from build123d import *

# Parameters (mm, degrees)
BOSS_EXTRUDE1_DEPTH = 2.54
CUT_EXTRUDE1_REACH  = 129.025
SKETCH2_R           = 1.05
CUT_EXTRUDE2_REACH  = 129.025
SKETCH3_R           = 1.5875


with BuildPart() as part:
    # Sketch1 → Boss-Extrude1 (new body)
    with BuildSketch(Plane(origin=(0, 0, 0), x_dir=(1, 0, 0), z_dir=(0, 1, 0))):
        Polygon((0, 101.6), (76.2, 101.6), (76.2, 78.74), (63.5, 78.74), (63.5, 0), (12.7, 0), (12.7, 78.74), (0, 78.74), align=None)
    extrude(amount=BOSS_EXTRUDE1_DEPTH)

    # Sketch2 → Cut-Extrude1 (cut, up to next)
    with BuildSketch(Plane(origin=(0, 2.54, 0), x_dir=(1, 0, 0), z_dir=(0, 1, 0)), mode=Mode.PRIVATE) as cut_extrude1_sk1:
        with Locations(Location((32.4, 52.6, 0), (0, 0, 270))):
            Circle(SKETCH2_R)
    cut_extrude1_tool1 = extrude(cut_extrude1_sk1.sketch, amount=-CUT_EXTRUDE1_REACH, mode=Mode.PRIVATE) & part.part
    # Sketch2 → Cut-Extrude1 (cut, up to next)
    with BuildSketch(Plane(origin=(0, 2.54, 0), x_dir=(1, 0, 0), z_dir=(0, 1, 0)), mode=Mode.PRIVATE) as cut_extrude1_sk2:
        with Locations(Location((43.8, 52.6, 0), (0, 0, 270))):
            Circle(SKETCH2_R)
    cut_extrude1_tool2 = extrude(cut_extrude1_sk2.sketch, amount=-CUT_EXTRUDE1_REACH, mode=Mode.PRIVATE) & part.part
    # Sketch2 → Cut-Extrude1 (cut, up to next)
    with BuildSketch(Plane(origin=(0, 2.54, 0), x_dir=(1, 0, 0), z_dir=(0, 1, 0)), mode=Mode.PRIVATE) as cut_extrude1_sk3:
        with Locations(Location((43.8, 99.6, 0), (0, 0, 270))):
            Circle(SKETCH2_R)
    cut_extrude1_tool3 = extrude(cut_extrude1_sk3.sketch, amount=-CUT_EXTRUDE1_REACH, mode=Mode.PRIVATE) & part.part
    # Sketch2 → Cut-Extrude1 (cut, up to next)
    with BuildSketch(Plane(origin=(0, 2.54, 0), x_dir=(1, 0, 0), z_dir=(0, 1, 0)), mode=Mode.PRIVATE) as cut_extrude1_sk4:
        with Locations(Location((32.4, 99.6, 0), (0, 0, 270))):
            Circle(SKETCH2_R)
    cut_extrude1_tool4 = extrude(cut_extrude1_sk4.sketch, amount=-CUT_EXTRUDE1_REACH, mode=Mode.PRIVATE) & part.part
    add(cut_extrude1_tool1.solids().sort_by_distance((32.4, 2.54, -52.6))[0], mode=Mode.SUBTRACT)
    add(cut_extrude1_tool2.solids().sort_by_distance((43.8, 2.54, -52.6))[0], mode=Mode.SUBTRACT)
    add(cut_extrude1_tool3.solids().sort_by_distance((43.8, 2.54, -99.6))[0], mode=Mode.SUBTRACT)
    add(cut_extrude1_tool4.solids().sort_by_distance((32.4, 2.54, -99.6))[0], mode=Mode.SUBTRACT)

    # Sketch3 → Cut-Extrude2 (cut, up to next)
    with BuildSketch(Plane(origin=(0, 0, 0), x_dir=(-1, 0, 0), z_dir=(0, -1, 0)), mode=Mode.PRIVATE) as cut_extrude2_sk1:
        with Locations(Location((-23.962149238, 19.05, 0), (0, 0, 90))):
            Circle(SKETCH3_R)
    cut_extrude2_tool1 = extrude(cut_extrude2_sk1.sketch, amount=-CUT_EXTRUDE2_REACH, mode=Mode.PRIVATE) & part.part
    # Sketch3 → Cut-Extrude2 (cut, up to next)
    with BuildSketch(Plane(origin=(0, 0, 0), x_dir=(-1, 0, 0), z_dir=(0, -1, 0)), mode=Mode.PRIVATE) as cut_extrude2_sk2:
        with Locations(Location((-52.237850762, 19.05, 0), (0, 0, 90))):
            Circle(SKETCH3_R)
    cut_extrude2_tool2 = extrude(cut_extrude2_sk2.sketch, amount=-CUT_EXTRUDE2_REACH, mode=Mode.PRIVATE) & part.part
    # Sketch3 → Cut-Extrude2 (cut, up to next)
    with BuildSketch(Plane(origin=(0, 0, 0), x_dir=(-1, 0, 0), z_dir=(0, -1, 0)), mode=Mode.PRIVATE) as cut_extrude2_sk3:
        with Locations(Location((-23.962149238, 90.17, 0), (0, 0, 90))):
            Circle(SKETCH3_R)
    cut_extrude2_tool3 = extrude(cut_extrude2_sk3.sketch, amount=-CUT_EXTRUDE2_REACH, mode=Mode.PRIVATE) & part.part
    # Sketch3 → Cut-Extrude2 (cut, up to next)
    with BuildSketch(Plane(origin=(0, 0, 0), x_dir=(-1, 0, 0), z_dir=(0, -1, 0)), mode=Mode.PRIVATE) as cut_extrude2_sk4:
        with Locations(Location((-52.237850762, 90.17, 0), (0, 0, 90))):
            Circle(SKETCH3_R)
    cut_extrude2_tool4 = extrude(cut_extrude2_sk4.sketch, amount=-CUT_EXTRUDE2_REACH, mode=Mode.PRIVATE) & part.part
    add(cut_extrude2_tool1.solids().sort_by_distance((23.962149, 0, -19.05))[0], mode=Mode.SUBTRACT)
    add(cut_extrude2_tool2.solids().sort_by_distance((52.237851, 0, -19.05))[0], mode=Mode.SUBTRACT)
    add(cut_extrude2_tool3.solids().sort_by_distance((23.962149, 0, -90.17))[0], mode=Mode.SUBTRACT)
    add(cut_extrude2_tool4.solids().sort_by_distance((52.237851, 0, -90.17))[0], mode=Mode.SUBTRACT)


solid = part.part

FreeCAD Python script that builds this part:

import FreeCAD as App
import Part
import Sketcher
from FreeCAD import Vector
Q = App.Units.Quantity

doc = App.newDocument("Part")
body = doc.addObject("PartDesign::Body", "Body")

sketch1 = body.newObject("Sketcher::SketchObject", "Sketch")
sketch1.AttachmentSupport = (doc.getObject("XZ_Plane"), [""])
sketch1.MapMode = "FlatFace"
sketch1.addGeometry(Part.LineSegment(Vector(76, -102, 0), Vector(0, -102, 0)), False)
sketch1.addGeometry(Part.LineSegment(Vector(0, -102, 0), Vector(0, -79, 0)), False)
sketch1.addGeometry(Part.LineSegment(Vector(0, -79, 0), Vector(13, -79, 0)), False)
sketch1.addGeometry(Part.LineSegment(Vector(13, -79, 0), Vector(13, 0, 0)), False)
sketch1.addGeometry(Part.LineSegment(Vector(13, 0, 0), Vector(64, 0, 0)), False)
sketch1.addGeometry(Part.LineSegment(Vector(64, 0, 0), Vector(64, -79, 0)), False)
sketch1.addGeometry(Part.LineSegment(Vector(64, -79, 0), Vector(76, -79, 0)), False)
sketch1.addGeometry(Part.LineSegment(Vector(76, -79, 0), Vector(76, -102, 0)), False)
sketch1.addConstraint(Sketcher.Constraint("Coincident", 0, 2, 1, 1))
sketch1.addConstraint(Sketcher.Constraint("Coincident", 1, 2, 2, 1))
sketch1.addConstraint(Sketcher.Constraint("Coincident", 2, 2, 3, 1))
sketch1.addConstraint(Sketcher.Constraint("Coincident", 3, 2, 4, 1))
sketch1.addConstraint(Sketcher.Constraint("Coincident", 4, 2, 5, 1))
sketch1.addConstraint(Sketcher.Constraint("Coincident", 5, 2, 6, 1))
sketch1.addConstraint(Sketcher.Constraint("Coincident", 6, 2, 7, 1))
sketch1.addConstraint(Sketcher.Constraint("Coincident", 7, 2, 0, 1))
sketch1.addConstraint(Sketcher.Constraint("Horizontal", 0))
sketch1.addConstraint(Sketcher.Constraint("Vertical", 1))
sketch1.addConstraint(Sketcher.Constraint("Horizontal", 2))
sketch1.addConstraint(Sketcher.Constraint("Vertical", 3))
sketch1.addConstraint(Sketcher.Constraint("Horizontal", 4))
sketch1.addConstraint(Sketcher.Constraint("Vertical", 5))
sketch1.addConstraint(Sketcher.Constraint("Horizontal", 6))
sketch1.addConstraint(Sketcher.Constraint("Vertical", 7))
sketch1.addConstraint(Sketcher.Constraint("PointOnObject", 0, 2, -2))
sketch1.addConstraint(Sketcher.Constraint("PointOnObject", 3, 2, -1))
sketch1.addConstraint(Sketcher.Constraint("Horizontal", 2, 2, 5, 2))
sketch1.addConstraint(Sketcher.Constraint("Equal", 2, 6))
sketch1.addConstraint(Sketcher.Constraint("DistanceX", 0, 2, 0, 1, Q("3 in")))
sketch1.addConstraint(Sketcher.Constraint("DistanceX", 4, 1, 4, 2, Q("2 in")))
sketch1.addConstraint(Sketcher.Constraint("DistanceY", 1, 1, 1, 2, Q("0.9 in")))
sketch1.addConstraint(Sketcher.Constraint("DistanceY", 3, 1, 3, 2, Q("3.1 in")))
pad1 = body.newObject("PartDesign::Pad", "Pad")
pad1.Profile = sketch1
pad1.Length = Q("0.1 in")
pad1.Reversed = True

sketch2 = body.newObject("Sketcher::SketchObject", "Sketch001")
sketch2.AttachmentSupport = (doc.getObject("XZ_Plane"), [""])
sketch2.MapMode = "FlatFace"
sketch2.AttachmentOffset = App.Placement(Vector(0, 0, -0.1 * 25.4), App.Rotation())
sketch2.addGeometry(Part.Circle(Vector(32.4, -52.6, 0), Vector(0, 0, 1), 1.1), False)
sketch2.addConstraint(Sketcher.Constraint("Diameter", 0, 2.1))
sketch2.addConstraint(Sketcher.Constraint("DistanceX", -1, 1, 0, 3, 32.4))
sketch2.addConstraint(Sketcher.Constraint("DistanceY", 0, 3, -1, 1, 52.6))
pocket1 = body.newObject("PartDesign::Pocket", "Pocket")
pocket1.Profile = sketch2
pocket1.Type = "UpToFirst"
pocket1.Reversed = True

sketch3 = body.newObject("Sketcher::SketchObject", "Sketch002")
sketch3.AttachmentSupport = (doc.getObject("XZ_Plane"), [""])
sketch3.MapMode = "FlatFace"
sketch3.AttachmentOffset = App.Placement(Vector(0, 0, -0.1 * 25.4), App.Rotation())
sketch3.addGeometry(Part.Circle(Vector(43.8, -52.6, 0), Vector(0, 0, 1), 1.1), False)
sketch3.addConstraint(Sketcher.Constraint("Diameter", 0, 2.1))
sketch3.addConstraint(Sketcher.Constraint("DistanceX", -1, 1, 0, 3, 43.8))
sketch3.addConstraint(Sketcher.Constraint("DistanceY", 0, 3, -1, 1, 52.6))
pocket2 = body.newObject("PartDesign::Pocket", "Pocket001")
pocket2.Profile = sketch3
pocket2.Type = "UpToFirst"
pocket2.Reversed = True

sketch4 = body.newObject("Sketcher::SketchObject", "Sketch003")
sketch4.AttachmentSupport = (doc.getObject("XZ_Plane"), [""])
sketch4.MapMode = "FlatFace"
sketch4.AttachmentOffset = App.Placement(Vector(0, 0, -0.1 * 25.4), App.Rotation())
sketch4.addGeometry(Part.Circle(Vector(43.8, -99.6, 0), Vector(0, 0, 1), 1.1), False)
sketch4.addConstraint(Sketcher.Constraint("Diameter", 0, 2.1))
sketch4.addConstraint(Sketcher.Constraint("DistanceX", -1, 1, 0, 3, 43.8))
sketch4.addConstraint(Sketcher.Constraint("DistanceY", 0, 3, -1, 1, 99.6))
pocket3 = body.newObject("PartDesign::Pocket", "Pocket002")
pocket3.Profile = sketch4
pocket3.Type = "UpToFirst"
pocket3.Reversed = True

sketch5 = body.newObject("Sketcher::SketchObject", "Sketch004")
sketch5.AttachmentSupport = (doc.getObject("XZ_Plane"), [""])
sketch5.MapMode = "FlatFace"
sketch5.AttachmentOffset = App.Placement(Vector(0, 0, -0.1 * 25.4), App.Rotation())
sketch5.addGeometry(Part.Circle(Vector(32.4, -99.6, 0), Vector(0, 0, 1), 1.1), False)
sketch5.addConstraint(Sketcher.Constraint("Diameter", 0, 2.1))
sketch5.addConstraint(Sketcher.Constraint("DistanceX", -1, 1, 0, 3, 32.4))
sketch5.addConstraint(Sketcher.Constraint("DistanceY", 0, 3, -1, 1, 99.6))
pocket4 = body.newObject("PartDesign::Pocket", "Pocket003")
pocket4.Profile = sketch5
pocket4.Type = "UpToFirst"
pocket4.Reversed = True

sketch6 = body.newObject("Sketcher::SketchObject", "Sketch005")
sketch6.AttachmentSupport = (doc.getObject("XZ_Plane"), [""])
sketch6.MapMode = "FlatFace"
sketch6.addGeometry(Part.Circle(Vector(24, -19.1, 0), Vector(0, 0, 1), 1.6), False)
sketch6.addConstraint(Sketcher.Constraint("Diameter", 0, Q("0.125 in")))
sketch6.addConstraint(Sketcher.Constraint("DistanceY", 0, 3, -1, 1, Q("0.75 in")))
sketch6.addConstraint(Sketcher.Constraint("DistanceX", -1, 1, 0, 3, 23.962149))
pocket5 = body.newObject("PartDesign::Pocket", "Pocket004")
pocket5.Profile = sketch6
pocket5.Type = "UpToFirst"

sketch7 = body.newObject("Sketcher::SketchObject", "Sketch006")
sketch7.AttachmentSupport = (doc.getObject("XZ_Plane"), [""])
sketch7.MapMode = "FlatFace"
sketch7.addGeometry(Part.Circle(Vector(52.2, -19.1, 0), Vector(0, 0, 1), 1.6), False)
sketch7.addConstraint(Sketcher.Constraint("Diameter", 0, Q("0.125 in")))
sketch7.addConstraint(Sketcher.Constraint("DistanceY", 0, 3, -1, 1, Q("0.75 in")))
sketch7.addConstraint(Sketcher.Constraint("DistanceX", -1, 1, 0, 3, 52.237851))
pocket6 = body.newObject("PartDesign::Pocket", "Pocket005")
pocket6.Profile = sketch7
pocket6.Type = "UpToFirst"

sketch8 = body.newObject("Sketcher::SketchObject", "Sketch007")
sketch8.AttachmentSupport = (doc.getObject("XZ_Plane"), [""])
sketch8.MapMode = "FlatFace"
sketch8.addGeometry(Part.Circle(Vector(24, -90.2, 0), Vector(0, 0, 1), 1.6), False)
sketch8.addConstraint(Sketcher.Constraint("Diameter", 0, Q("0.125 in")))
sketch8.addConstraint(Sketcher.Constraint("DistanceY", 0, 3, -1, 1, Q("3.55 in")))
sketch8.addConstraint(Sketcher.Constraint("DistanceX", -1, 1, 0, 3, 23.962149))
pocket7 = body.newObject("PartDesign::Pocket", "Pocket006")
pocket7.Profile = sketch8
pocket7.Type = "UpToFirst"

sketch9 = body.newObject("Sketcher::SketchObject", "Sketch008")
sketch9.AttachmentSupport = (doc.getObject("XZ_Plane"), [""])
sketch9.MapMode = "FlatFace"
sketch9.addGeometry(Part.Circle(Vector(52.2, -90.2, 0), Vector(0, 0, 1), 1.6), False)
sketch9.addConstraint(Sketcher.Constraint("Diameter", 0, Q("0.125 in")))
sketch9.addConstraint(Sketcher.Constraint("DistanceY", 0, 3, -1, 1, Q("3.55 in")))
sketch9.addConstraint(Sketcher.Constraint("DistanceX", -1, 1, 0, 3, 52.237851))
pocket8 = body.newObject("PartDesign::Pocket", "Pocket007")
pocket8.Profile = sketch9
pocket8.Type = "UpToFirst"

doc.recompute()
